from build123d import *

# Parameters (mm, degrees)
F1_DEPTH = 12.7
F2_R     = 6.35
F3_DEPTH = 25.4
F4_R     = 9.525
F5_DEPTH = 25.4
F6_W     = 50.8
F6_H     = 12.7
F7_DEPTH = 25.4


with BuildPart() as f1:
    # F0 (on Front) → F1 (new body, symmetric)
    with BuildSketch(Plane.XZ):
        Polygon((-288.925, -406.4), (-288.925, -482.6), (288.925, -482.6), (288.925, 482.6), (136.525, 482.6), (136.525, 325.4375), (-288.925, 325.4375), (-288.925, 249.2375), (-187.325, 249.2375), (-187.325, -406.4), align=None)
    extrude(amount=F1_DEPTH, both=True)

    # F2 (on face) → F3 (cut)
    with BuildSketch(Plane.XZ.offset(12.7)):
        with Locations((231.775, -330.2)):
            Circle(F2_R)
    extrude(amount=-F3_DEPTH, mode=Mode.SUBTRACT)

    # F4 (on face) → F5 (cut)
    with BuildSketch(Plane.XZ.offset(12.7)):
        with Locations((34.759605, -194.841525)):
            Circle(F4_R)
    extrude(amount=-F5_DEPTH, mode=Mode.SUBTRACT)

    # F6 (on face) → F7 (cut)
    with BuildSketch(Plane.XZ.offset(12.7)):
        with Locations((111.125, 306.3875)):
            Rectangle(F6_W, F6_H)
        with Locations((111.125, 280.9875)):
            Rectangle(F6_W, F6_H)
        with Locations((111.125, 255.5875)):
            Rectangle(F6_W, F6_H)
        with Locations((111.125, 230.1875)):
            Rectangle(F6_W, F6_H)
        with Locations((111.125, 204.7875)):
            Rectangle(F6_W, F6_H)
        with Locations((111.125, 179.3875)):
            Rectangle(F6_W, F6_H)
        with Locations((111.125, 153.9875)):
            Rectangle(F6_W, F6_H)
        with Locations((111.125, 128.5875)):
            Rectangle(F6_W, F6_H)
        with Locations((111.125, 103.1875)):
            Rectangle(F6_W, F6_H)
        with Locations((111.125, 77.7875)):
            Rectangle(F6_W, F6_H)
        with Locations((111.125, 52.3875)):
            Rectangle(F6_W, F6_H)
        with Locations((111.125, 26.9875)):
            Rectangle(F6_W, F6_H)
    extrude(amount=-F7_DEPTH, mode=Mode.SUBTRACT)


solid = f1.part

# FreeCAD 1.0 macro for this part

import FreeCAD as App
import Part
import Sketcher
Q = App.Units.Quantity

doc = App.newDocument("Part")
body = doc.addObject("PartDesign::Body", "Body")

# Sketch on XZ plane
sketch1 = doc.addObject("Sketcher::SketchObject", "Sketch")
body.addObject(sketch1)
sketch1.AttachmentSupport = (doc.XZ_Plane, [""])
sketch1.MapMode = "FlatFace"
sketch1.addGeometry([
    Part.LineSegment(App.Vector(-289, -406, 0), App.Vector(-289, -483, 0)),  # 0
    Part.LineSegment(App.Vector(-289, -483, 0), App.Vector(289, -483, 0)),  # 1
    Part.LineSegment(App.Vector(289, -483, 0), App.Vector(289, 483, 0)),  # 2
    Part.LineSegment(App.Vector(289, 483, 0), App.Vector(137, 483, 0)),  # 3
    Part.LineSegment(App.Vector(137, 483, 0), App.Vector(137, 325, 0)),  # 4
    Part.LineSegment(App.Vector(137, 325, 0), App.Vector(-289, 325, 0)),  # 5
    Part.LineSegment(App.Vector(-289, 325, 0), App.Vector(-289, 249, 0)),  # 6
    Part.LineSegment(App.Vector(-289, 249, 0), App.Vector(-187, 249, 0)),  # 7
    Part.LineSegment(App.Vector(-187, 249, 0), App.Vector(-187, -406, 0)),  # 8
    Part.LineSegment(App.Vector(-187, -406, 0), App.Vector(-289, -406, 0)),  # 9
], False)
sketch1.addConstraint([
    Sketcher.Constraint("Coincident", 0, 2, 1, 1),
    Sketcher.Constraint("Coincident", 1, 2, 2, 1),
    Sketcher.Constraint("Coincident", 2, 2, 3, 1),
    Sketcher.Constraint("Coincident", 3, 2, 4, 1),
    Sketcher.Constraint("Coincident", 4, 2, 5, 1),
    Sketcher.Constraint("Coincident", 5, 2, 6, 1),
    Sketcher.Constraint("Coincident", 6, 2, 7, 1),
    Sketcher.Constraint("Coincident", 7, 2, 8, 1),
    Sketcher.Constraint("Coincident", 8, 2, 9, 1),
    Sketcher.Constraint("Coincident", 9, 2, 0, 1),
    Sketcher.Constraint("Vertical", 0),
    Sketcher.Constraint("Horizontal", 1),
    Sketcher.Constraint("Vertical", 2),
    Sketcher.Constraint("Horizontal", 3),
    Sketcher.Constraint("Vertical", 4),
    Sketcher.Constraint("Horizontal", 5),
    Sketcher.Constraint("Vertical", 6),
    Sketcher.Constraint("Horizontal", 7),
    Sketcher.Constraint("Vertical", 8),
    Sketcher.Constraint("Horizontal", 9),
    Sketcher.Constraint("Symmetric", 0, 2, 2, 2, -1, 1),
    Sketcher.Constraint("Vertical", 0, 2, 5, 2),
    Sketcher.Constraint("Equal", 0, 6),
    Sketcher.Constraint("DistanceX", 3, 2, 3, 1, Q("6 in")),
    Sketcher.Constraint("DistanceX", 7, 1, 7, 2, Q("4 in")),
    Sketcher.Constraint("DistanceY", 0, 2, 0, 1, Q("3 in")),
    Sketcher.Constraint("DistanceY", 2, 1, 2, 2, Q("38 in")),
    Sketcher.Constraint("DistanceX", 1, 1, 1, 2, Q("22.75 in")),
    Sketcher.Constraint("DistanceY", 4, 2, 4, 1, Q("6.1875 in")),
])
pad1 = doc.addObject("PartDesign::Pad", "Pad")
body.addObject(pad1)
pad1.Profile = sketch1
pad1.Length = Q("1 in")
pad1.Midplane = True

# Sketch on XZ plane
sketch2 = doc.addObject("Sketcher::SketchObject", "Sketch001")
body.addObject(sketch2)
sketch2.AttachmentSupport = (doc.XZ_Plane, [""])
sketch2.MapMode = "FlatFace"
sketch2.AttachmentOffset = App.Placement(App.Vector(0, 0, 0.5 * 25.4), App.Rotation())
sketch2.addGeometry(Part.Circle(App.Vector(232, -330, 0), App.Vector(0, 0, 1), 6), False)
sketch2.addConstraint([
    Sketcher.Constraint("Diameter", 0, Q("0.5 in")),
    Sketcher.Constraint("DistanceY", 0, 3, -1, 1, Q("13 in")),
    Sketcher.Constraint("DistanceX", -1, 1, 0, 3, Q("9.125 in")),
])
pocket1 = doc.addObject("PartDesign::Pocket", "Pocket")
body.addObject(pocket1)
pocket1.Profile = sketch2
pocket1.Length = Q("1 in")

# Sketch on XZ plane
sketch3 = doc.addObject("Sketcher::SketchObject", "Sketch002")
body.addObject(sketch3)
sketch3.AttachmentSupport = (doc.XZ_Plane, [""])
sketch3.MapMode = "FlatFace"
sketch3.AttachmentOffset = App.Placement(App.Vector(0, 0, 0.5 * 25.4), App.Rotation())
sketch3.addGeometry(Part.Circle(App.Vector(35, -195, 0), App.Vector(0, 0, 1), 10), False)
sketch3.addConstraint([
    Sketcher.Constraint("Diameter", 0, Q("0.75 in")),
    Sketcher.Constraint("DistanceX", -1, 1, 0, 3, 34.759605),
    Sketcher.Constraint("DistanceY", 0, 3, -1, 1, 194.841525),
])
pocket2 = doc.addObject("PartDesign::Pocket", "Pocket001")
body.addObject(pocket2)
pocket2.Profile = sketch3
pocket2.Length = Q("1 in")

# Sketch on XZ plane
sketch4 = doc.addObject("Sketcher::SketchObject", "Sketch003")
body.addObject(sketch4)
sketch4.AttachmentSupport = (doc.XZ_Plane, [""])
sketch4.MapMode = "FlatFace"
sketch4.AttachmentOffset = App.Placement(App.Vector(0, 0, 0.5 * 25.4), App.Rotation())
sketch4.addGeometry([
    Part.LineSegment(App.Vector(86, 313, 0), App.Vector(86, 300, 0)),  # 0
    Part.LineSegment(App.Vector(86, 300, 0), App.Vector(137, 300, 0)),  # 1
    Part.LineSegment(App.Vector(137, 300, 0), App.Vector(137, 313, 0)),  # 2
    Part.LineSegment(App.Vector(137, 313, 0), App.Vector(86, 313, 0)),  # 3
    Part.LineSegment(App.Vector(86, 287, 0), App.Vector(86, 275, 0)),  # 4
    Part.LineSegment(App.Vector(86, 275, 0), App.Vector(137, 275, 0)),  # 5
    Part.LineSegment(App.Vector(137, 275, 0), App.Vector(137, 287, 0)),  # 6
    Part.LineSegment(App.Vector(137, 287, 0), App.Vector(86, 287, 0)),  # 7
    Part.LineSegment(App.Vector(86, 262, 0), App.Vector(86, 249, 0)),  # 8
    Part.LineSegment(App.Vector(86, 249, 0), App.Vector(137, 249, 0)),  # 9
    Part.LineSegment(App.Vector(137, 249, 0), App.Vector(137, 262, 0)),  # 10
    Part.LineSegment(App.Vector(137, 262, 0), App.Vector(86, 262, 0)),  # 11
    Part.LineSegment(App.Vector(86, 237, 0), App.Vector(86, 224, 0)),  # 12
    Part.LineSegment(App.Vector(86, 224, 0), App.Vector(137, 224, 0)),  # 13
    Part.LineSegment(App.Vector(137, 224, 0), App.Vector(137, 237, 0)),  # 14
    Part.LineSegment(App.Vector(137, 237, 0), App.Vector(86, 237, 0)),  # 15
    Part.LineSegment(App.Vector(86, 211, 0), App.Vector(86, 198, 0)),  # 16
    Part.LineSegment(App.Vector(86, 198, 0), App.Vector(137, 198, 0)),  # 17
    Part.LineSegment(App.Vector(137, 198, 0), App.Vector(137, 211, 0)),  # 18
    Part.LineSegment(App.Vector(137, 211, 0), App.Vector(86, 211, 0)),  # 19
    Part.LineSegment(App.Vector(86, 186, 0), App.Vector(86, 173, 0)),  # 20
    Part.LineSegment(App.Vector(86, 173, 0), App.Vector(137, 173, 0)),  # 21
    Part.LineSegment(App.Vector(137, 173, 0), App.Vector(137, 186, 0)),  # 22
    Part.LineSegment(App.Vector(137, 186, 0), App.Vector(86, 186, 0)),  # 23
    Part.LineSegment(App.Vector(86, 160, 0), App.Vector(86, 148, 0)),  # 24
    Part.LineSegment(App.Vector(86, 148, 0), App.Vector(137, 148, 0)),  # 25
    Part.LineSegment(App.Vector(137, 148, 0), App.Vector(137, 160, 0)),  # 26
    Part.LineSegment(App.Vector(137, 160, 0), App.Vector(86, 160, 0)),  # 27
    Part.LineSegment(App.Vector(86, 135, 0), App.Vector(86, 122, 0)),  # 28
    Part.LineSegment(App.Vector(86, 122, 0), App.Vector(137, 122, 0)),  # 29
    Part.LineSegment(App.Vector(137, 122, 0), App.Vector(137, 135, 0)),  # 30
    Part.LineSegment(App.Vector(137, 135, 0), App.Vector(86, 135, 0)),  # 31
    Part.LineSegment(App.Vector(86, 110, 0), App.Vector(86, 97, 0)),  # 32
    Part.LineSegment(App.Vector(86, 97, 0), App.Vector(137, 97, 0)),  # 33
    Part.LineSegment(App.Vector(137, 97, 0), App.Vector(137, 110, 0)),  # 34
    Part.LineSegment(App.Vector(137, 110, 0), App.Vector(86, 110, 0)),  # 35
    Part.LineSegment(App.Vector(86, 84, 0), App.Vector(86, 71, 0)),  # 36
    Part.LineSegment(App.Vector(86, 71, 0), App.Vector(137, 71, 0)),  # 37
    Part.LineSegment(App.Vector(137, 71, 0), App.Vector(137, 84, 0)),  # 38
    Part.LineSegment(App.Vector(137, 84, 0), App.Vector(86, 84, 0)),  # 39
    Part.LineSegment(App.Vector(86, 59, 0), App.Vector(86, 46, 0)),  # 40
    Part.LineSegment(App.Vector(86, 46, 0), App.Vector(137, 46, 0)),  # 41
    Part.LineSegment(App.Vector(137, 46, 0), App.Vector(137, 59, 0)),  # 42
    Part.LineSegment(App.Vector(137, 59, 0), App.Vector(86, 59, 0)),  # 43
    Part.LineSegment(App.Vector(86, 33, 0), App.Vector(86, 21, 0)),  # 44
    Part.LineSegment(App.Vector(86, 21, 0), App.Vector(137, 21, 0)),  # 45
    Part.LineSegment(App.Vector(137, 21, 0), App.Vector(137, 33, 0)),  # 46
    Part.LineSegment(App.Vector(137, 33, 0), App.Vector(86, 33, 0)),  # 47
], False)
sketch4.addConstraint([
    Sketcher.Constraint("Coincident", 0, 2, 1, 1),
    Sketcher.Constraint("Coincident", 1, 2, 2, 1),
    Sketcher.Constraint("Coincident", 2, 2, 3, 1),
    Sketcher.Constraint("Coincident", 3, 2, 0, 1),
    Sketcher.Constraint("Coincident", 4, 2, 5, 1),
    Sketcher.Constraint("Coincident", 5, 2, 6, 1),
    Sketcher.Constraint("Coincident", 6, 2, 7, 1),
    Sketcher.Constraint("Coincident", 7, 2, 4, 1),
    Sketcher.Constraint("Coincident", 8, 2, 9, 1),
    Sketcher.Constraint("Coincident", 9, 2, 10, 1),
    Sketcher.Constraint("Coincident", 10, 2, 11, 1),
    Sketcher.Constraint("Coincident", 11, 2, 8, 1),
    Sketcher.Constraint("Coincident", 12, 2, 13, 1),
    Sketcher.Constraint("Coincident", 13, 2, 14, 1),
    Sketcher.Constraint("Coincident", 14, 2, 15, 1),
    Sketcher.Constraint("Coincident", 15, 2, 12, 1),
    Sketcher.Constraint("Coincident", 16, 2, 17, 1),
    Sketcher.Constraint("Coincident", 17, 2, 18, 1),
    Sketcher.Constraint("Coincident", 18, 2, 19, 1),
    Sketcher.Constraint("Coincident", 19, 2, 16, 1),
    Sketcher.Constraint("Coincident", 20, 2, 21, 1),
    Sketcher.Constraint("Coincident", 21, 2, 22, 1),
    Sketcher.Constraint("Coincident", 22, 2, 23, 1),
    Sketcher.Constraint("Coincident", 23, 2, 20, 1),
    Sketcher.Constraint("Coincident", 24, 2, 25, 1),
    Sketcher.Constraint("Coincident", 25, 2, 26, 1),
    Sketcher.Constraint("Coincident", 26, 2, 27, 1),
    Sketcher.Constraint("Coincident", 27, 2, 24, 1),
    Sketcher.Constraint("Coincident", 28, 2, 29, 1),
    Sketcher.Constraint("Coincident", 29, 2, 30, 1),
    Sketcher.Constraint("Coincident", 30, 2, 31, 1),
    Sketcher.Constraint("Coincident", 31, 2, 28, 1),
    Sketcher.Constraint("Coincident", 32, 2, 33, 1),
    Sketcher.Constraint("Coincident", 33, 2, 34, 1),
    Sketcher.Constraint("Coincident", 34, 2, 35, 1),
    Sketcher.Constraint("Coincident", 35, 2, 32, 1),
    Sketcher.Constraint("Coincident", 36, 2, 37, 1),
    Sketcher.Constraint("Coincident", 37, 2, 38, 1),
    Sketcher.Constraint("Coincident", 38, 2, 39, 1),
    Sketcher.Constraint("Coincident", 39, 2, 36, 1),
    Sketcher.Constraint("Coincident", 40, 2, 41, 1),
    Sketcher.Constraint("Coincident", 41, 2, 42, 1),
    Sketcher.Constraint("Coincident", 42, 2, 43, 1),
    Sketcher.Constraint("Coincident", 43, 2, 40, 1),
    Sketcher.Constraint("Coincident", 44, 2, 45, 1),
    Sketcher.Constraint("Coincident", 45, 2, 46, 1),
    Sketcher.Constraint("Coincident", 46, 2, 47, 1),
    Sketcher.Constraint("Coincident", 47, 2, 44, 1),
    Sketcher.Constraint("Vertical", 0),
    Sketcher.Constraint("Horizontal", 1),
    Sketcher.Constraint("Vertical", 2),
    Sketcher.Constraint("Horizontal", 3),
    Sketcher.Constraint("Vertical", 4),
    Sketcher.Constraint("Horizontal", 5),
    Sketcher.Constraint("Vertical", 6),
    Sketcher.Constraint("Horizontal", 7),
    Sketcher.Constraint("Vertical", 8),
    Sketcher.Constraint("Horizontal", 9),
    Sketcher.Constraint("Vertical", 10),
    Sketcher.Constraint("Horizontal", 11),
    Sketcher.Constraint("Vertical", 12),
    Sketcher.Constraint("Horizontal", 13),
    Sketcher.Constraint("Vertical", 14),
    Sketcher.Constraint("Horizontal", 15),
    Sketcher.Constraint("Vertical", 16),
    Sketcher.Constraint("Horizontal", 17),
    Sketcher.Constraint("Vertical", 18),
    Sketcher.Constraint("Horizontal", 19),
    Sketcher.Constraint("Vertical", 20),
    Sketcher.Constraint("Horizontal", 21),
    Sketcher.Constraint("Vertical", 22),
    Sketcher.Constraint("Horizontal", 23),
    Sketcher.Constraint("Vertical", 24),
    Sketcher.Constraint("Horizontal", 25),
    Sketcher.Constraint("Vertical", 26),
    Sketcher.Constraint("Horizontal", 27),
    Sketcher.Constraint("Vertical", 28),
    Sketcher.Constraint("Horizontal", 29),
    Sketcher.Constraint("Vertical", 30),
    Sketcher.Constraint("Horizontal", 31),
    Sketcher.Constraint("Vertical", 32),
    Sketcher.Constraint("Horizontal", 33),
    Sketcher.Constraint("Vertical", 34),
    Sketcher.Constraint("Horizontal", 35),
    Sketcher.Constraint("Vertical", 36),
    Sketcher.Constraint("Horizontal", 37),
    Sketcher.Constraint("Vertical", 38),
    Sketcher.Constraint("Horizontal", 39),
    Sketcher.Constraint("Vertical", 40),
    Sketcher.Constraint("Horizontal", 41),
    Sketcher.Constraint("Vertical", 42),
    Sketcher.Constraint("Horizontal", 43),
    Sketcher.Constraint("Vertical", 44),
    Sketcher.Constraint("Horizontal", 45),
    Sketcher.Constraint("Vertical", 46),
    Sketcher.Constraint("Horizontal", 47),
    Sketcher.Constraint("Vertical", 3, 2, 4, 2),
    Sketcher.Constraint("Vertical", 2, 2, 5, 2),
    Sketcher.Constraint("Vertical", 7, 2, 8, 2),
    Sketcher.Constraint("Vertical", 6, 2, 9, 2),
    Sketcher.Constraint("Vertical", 11, 2, 12, 2),
    Sketcher.Constraint("Vertical", 10, 2, 13, 2),
    Sketcher.Constraint("Vertical", 15, 2, 16, 2),
    Sketcher.Constraint("Vertical", 14, 2, 17, 2),
    Sketcher.Constraint("Vertical", 19, 2, 20, 2),
    Sketcher.Constraint("Vertical", 18, 2, 21, 2),
    Sketcher.Constraint("Vertical", 23, 2, 24, 2),
    Sketcher.Constraint("Vertical", 22, 2, 25, 2),
    Sketcher.Constraint("Vertical", 27, 2, 28, 2),
    Sketcher.Constraint("Vertical", 26, 2, 29, 2),
    Sketcher.Constraint("Vertical", 31, 2, 32, 2),
    Sketcher.Constraint("Vertical", 30, 2, 33, 2),
    Sketcher.Constraint("Vertical", 35, 2, 36, 2),
    Sketcher.Constraint("Vertical", 34, 2, 37, 2),
    Sketcher.Constraint("Vertical", 39, 2, 40, 2),
    Sketcher.Constraint("Vertical", 38, 2, 41, 2),
    Sketcher.Constraint("Vertical", 43, 2, 44, 2),
    Sketcher.Constraint("Vertical", 42, 2, 45, 2),
    Sketcher.Constraint("Equal", 2, 4),
    Sketcher.Constraint("Equal", 6, 8),
    Sketcher.Constraint("Equal", 10, 12),
    Sketcher.Constraint("Equal", 14, 16),
    Sketcher.Constraint("Equal", 18, 20),
    Sketcher.Constraint("Equal", 22, 24),
    Sketcher.Constraint("Equal", 26, 28),
    Sketcher.Constraint("Equal", 30, 32),
    Sketcher.Constraint("Equal", 34, 36),
    Sketcher.Constraint("Equal", 38, 40),
    Sketcher.Constraint("Equal", 42, 44),
    Sketcher.Constraint("DistanceX", 1, 1, 1, 2, Q("2 in")),
    Sketcher.Constraint("DistanceY", 0, 2, 0, 1, Q("0.5 in")),
    Sketcher.Constraint("DistanceY", 4, 2, 0, 2, Q("1 in")),
    Sketcher.Constraint("DistanceY", 8, 2, 4, 2, Q("1 in")),
    Sketcher.Constraint("DistanceY", 12, 2, 8, 2, Q("1 in")),
    Sketcher.Constraint("DistanceY", 16, 2, 12, 2, Q("1 in")),
    Sketcher.Constraint("DistanceY", 20, 2, 16, 2, Q("1 in")),
    Sketcher.Constraint("DistanceY", 24, 2, 20, 2, Q("1 in")),
    Sketcher.Constraint("DistanceY", 28, 2, 24, 2, Q("1 in")),
    Sketcher.Constraint("DistanceY", 32, 2, 28, 2, Q("1 in")),
    Sketcher.Constraint("DistanceY", 36, 2, 32, 2, Q("1 in")),
    Sketcher.Constraint("DistanceY", 40, 2, 36, 2, Q("1 in")),
    Sketcher.Constraint("DistanceY", 44, 2, 40, 2, Q("1 in")),
    Sketcher.Constraint("DistanceX", -1, 1, 0, 2, Q("3.375 in")),
    Sketcher.Constraint("DistanceY", -1, 1, 0, 2, Q("11.8125 in")),
])
pocket3 = doc.addObject("PartDesign::Pocket", "Pocket002")
body.addObject(pocket3)
pocket3.Profile = sketch4
pocket3.Length = Q("1 in")

doc.recompute()
